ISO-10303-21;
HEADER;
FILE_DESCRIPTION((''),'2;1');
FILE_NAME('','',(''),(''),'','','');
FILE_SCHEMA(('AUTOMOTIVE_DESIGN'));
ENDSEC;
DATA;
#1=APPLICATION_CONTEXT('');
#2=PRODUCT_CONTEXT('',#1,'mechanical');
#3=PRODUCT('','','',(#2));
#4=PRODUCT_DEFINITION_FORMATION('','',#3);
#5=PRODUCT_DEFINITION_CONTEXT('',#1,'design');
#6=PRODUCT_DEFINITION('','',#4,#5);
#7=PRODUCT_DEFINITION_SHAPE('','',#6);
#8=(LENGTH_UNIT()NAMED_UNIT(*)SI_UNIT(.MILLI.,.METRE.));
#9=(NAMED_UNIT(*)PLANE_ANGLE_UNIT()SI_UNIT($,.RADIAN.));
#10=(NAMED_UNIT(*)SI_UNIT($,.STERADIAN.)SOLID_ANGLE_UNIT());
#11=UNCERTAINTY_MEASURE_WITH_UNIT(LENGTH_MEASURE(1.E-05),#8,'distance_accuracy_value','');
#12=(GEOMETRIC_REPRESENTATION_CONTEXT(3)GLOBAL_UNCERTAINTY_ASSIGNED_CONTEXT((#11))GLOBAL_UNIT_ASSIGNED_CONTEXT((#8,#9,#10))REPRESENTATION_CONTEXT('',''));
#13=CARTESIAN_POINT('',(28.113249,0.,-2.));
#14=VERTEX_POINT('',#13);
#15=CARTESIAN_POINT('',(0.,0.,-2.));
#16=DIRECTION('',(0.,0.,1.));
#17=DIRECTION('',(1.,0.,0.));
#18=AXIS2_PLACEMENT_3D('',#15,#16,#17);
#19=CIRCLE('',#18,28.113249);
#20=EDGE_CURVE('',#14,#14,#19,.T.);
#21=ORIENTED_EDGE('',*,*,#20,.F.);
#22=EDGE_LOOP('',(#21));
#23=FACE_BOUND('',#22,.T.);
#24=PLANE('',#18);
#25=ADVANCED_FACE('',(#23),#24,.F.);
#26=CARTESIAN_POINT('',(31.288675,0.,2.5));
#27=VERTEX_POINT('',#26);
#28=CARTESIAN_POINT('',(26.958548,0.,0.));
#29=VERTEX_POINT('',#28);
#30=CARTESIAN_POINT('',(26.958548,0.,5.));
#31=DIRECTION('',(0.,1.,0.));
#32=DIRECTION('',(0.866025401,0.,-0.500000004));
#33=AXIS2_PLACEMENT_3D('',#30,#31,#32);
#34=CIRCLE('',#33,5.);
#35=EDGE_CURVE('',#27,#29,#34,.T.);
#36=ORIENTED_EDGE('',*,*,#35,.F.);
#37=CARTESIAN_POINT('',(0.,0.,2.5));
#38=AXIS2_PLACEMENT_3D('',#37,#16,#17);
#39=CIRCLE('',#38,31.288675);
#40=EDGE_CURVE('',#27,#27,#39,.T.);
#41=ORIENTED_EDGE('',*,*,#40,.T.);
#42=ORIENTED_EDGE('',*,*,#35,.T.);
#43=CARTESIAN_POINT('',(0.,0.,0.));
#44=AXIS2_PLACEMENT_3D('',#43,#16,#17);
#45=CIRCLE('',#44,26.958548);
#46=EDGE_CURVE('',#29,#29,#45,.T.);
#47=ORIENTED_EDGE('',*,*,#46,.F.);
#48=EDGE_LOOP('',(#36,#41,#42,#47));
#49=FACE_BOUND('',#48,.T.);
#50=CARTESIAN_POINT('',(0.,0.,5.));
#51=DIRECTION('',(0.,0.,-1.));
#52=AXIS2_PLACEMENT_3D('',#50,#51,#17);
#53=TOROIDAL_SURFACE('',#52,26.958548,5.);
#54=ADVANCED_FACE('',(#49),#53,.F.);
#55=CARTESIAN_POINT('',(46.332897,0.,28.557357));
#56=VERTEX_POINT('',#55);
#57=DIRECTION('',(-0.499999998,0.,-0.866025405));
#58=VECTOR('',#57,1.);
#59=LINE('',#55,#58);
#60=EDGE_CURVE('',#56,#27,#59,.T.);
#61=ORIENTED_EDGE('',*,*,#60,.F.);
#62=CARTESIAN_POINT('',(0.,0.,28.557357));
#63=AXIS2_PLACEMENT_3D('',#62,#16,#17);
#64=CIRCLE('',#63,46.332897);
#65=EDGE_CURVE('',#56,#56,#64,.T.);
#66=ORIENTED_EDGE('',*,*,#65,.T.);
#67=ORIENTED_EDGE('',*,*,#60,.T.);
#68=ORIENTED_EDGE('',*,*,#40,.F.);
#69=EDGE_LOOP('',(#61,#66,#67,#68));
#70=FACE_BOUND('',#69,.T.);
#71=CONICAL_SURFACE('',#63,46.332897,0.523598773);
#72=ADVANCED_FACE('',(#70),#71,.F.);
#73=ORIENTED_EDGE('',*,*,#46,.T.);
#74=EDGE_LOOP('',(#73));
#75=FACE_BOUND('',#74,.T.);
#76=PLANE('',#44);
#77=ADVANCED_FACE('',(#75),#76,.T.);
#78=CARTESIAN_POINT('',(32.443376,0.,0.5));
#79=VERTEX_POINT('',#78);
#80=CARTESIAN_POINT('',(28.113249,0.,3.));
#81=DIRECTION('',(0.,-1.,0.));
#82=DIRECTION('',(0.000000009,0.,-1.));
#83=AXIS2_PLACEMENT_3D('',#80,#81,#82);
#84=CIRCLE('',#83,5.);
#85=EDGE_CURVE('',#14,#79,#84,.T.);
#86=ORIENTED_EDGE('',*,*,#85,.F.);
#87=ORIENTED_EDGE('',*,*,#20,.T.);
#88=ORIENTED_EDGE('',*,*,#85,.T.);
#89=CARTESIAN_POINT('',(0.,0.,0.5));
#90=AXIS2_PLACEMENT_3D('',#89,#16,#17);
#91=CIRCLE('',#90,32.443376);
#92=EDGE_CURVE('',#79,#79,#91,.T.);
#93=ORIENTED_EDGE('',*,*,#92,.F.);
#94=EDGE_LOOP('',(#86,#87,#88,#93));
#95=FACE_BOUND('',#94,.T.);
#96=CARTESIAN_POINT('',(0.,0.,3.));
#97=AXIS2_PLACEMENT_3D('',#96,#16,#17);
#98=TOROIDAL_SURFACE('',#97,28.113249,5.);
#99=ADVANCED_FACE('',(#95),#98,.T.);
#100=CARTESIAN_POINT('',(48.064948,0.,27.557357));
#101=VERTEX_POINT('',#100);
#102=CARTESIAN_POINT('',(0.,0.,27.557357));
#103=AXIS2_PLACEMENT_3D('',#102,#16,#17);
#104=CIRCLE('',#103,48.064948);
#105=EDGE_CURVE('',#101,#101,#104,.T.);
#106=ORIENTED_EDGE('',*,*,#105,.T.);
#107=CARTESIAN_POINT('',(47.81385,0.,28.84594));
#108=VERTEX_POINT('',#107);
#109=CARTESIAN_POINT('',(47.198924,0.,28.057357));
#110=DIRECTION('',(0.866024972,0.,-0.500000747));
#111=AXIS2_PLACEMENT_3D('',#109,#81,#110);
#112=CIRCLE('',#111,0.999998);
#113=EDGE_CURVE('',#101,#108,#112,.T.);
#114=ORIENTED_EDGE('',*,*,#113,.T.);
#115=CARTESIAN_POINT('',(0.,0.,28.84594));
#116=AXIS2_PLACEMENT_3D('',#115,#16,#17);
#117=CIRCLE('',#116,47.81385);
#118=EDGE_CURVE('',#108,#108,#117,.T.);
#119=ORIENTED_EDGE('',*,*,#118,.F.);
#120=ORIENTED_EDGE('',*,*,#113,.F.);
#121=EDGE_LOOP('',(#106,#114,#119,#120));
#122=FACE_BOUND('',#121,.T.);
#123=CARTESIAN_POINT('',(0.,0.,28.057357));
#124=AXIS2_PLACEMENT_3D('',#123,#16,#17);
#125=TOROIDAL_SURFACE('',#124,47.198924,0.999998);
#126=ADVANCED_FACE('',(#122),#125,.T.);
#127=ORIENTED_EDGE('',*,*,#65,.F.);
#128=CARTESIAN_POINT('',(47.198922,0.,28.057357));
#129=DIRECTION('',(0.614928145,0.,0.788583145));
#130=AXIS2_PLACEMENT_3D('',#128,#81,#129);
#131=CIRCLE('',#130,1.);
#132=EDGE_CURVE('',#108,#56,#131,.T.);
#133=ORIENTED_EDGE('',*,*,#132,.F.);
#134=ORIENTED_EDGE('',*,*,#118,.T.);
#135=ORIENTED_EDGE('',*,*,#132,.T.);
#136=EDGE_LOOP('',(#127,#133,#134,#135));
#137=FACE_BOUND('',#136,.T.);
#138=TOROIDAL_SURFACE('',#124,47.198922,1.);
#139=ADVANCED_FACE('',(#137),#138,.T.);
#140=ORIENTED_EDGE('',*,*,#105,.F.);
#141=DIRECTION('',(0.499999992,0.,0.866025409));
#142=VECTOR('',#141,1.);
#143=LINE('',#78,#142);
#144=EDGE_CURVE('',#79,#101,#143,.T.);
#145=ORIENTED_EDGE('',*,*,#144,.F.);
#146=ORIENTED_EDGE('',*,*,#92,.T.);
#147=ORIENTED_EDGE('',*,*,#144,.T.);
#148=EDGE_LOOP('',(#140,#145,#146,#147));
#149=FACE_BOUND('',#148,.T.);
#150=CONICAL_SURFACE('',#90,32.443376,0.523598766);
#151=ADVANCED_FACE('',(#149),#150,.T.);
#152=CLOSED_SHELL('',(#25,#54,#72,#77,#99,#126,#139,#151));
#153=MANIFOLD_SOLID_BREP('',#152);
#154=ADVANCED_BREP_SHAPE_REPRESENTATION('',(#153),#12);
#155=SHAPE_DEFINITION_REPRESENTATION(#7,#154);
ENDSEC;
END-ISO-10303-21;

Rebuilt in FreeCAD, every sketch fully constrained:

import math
import FreeCAD as App
import Part
import Sketcher
from FreeCAD import Vector
Q = App.Units.Quantity

doc = App.newDocument("Part")
body = doc.addObject("PartDesign::Body", "Body")

# Sketch on XZ plane
sketch1 = body.newObject("Sketcher::SketchObject", "Sketch")
sketch1.AttachmentSupport = (doc.getObject("XZ_Plane"), [""])
sketch1.MapMode = "FlatFace"
sketch1.addGeometry([
    Part.LineSegment(Vector(26.958548, 0, 0), Vector(0, 0, 0)),  # 0
    Part.LineSegment(Vector(0, 0, 0), Vector(0, -2, 0)),  # 1
    Part.LineSegment(Vector(0, -2, 0), Vector(28.113249, -2, 0)),  # 2
    Part.ArcOfCircle(Part.Circle(Vector(28.113249, 3, 0), Vector(0, 0, 1), 5), math.radians(-89.999999), math.radians(-30)),  # 3
    Part.LineSegment(Vector(32.443376, 0.5, 0), Vector(48.064948, 27.557357, 0)),  # 4
    Part.ArcOfCircle(Part.Circle(Vector(47.198924, 28.057357, 0), Vector(0, 0, 1), 0.999998), math.radians(-30.000049), math.radians(52.053416)),  # 5
    Part.ArcOfCircle(Part.Circle(Vector(47.198922, 28.057357, 0), Vector(0, 0, 1), 1), math.radians(52.053301), math.radians(149.999997)),  # 6
    Part.LineSegment(Vector(46.332897, 28.557357, 0), Vector(31.288675, 2.5, 0)),  # 7
    Part.ArcOfCircle(Part.Circle(Vector(26.958548, 5, 0), Vector(0, 0, 1), 5), math.radians(-89.999999), math.radians(-30)),  # 8
], False)
sketch1.addConstraint([
    Sketcher.Constraint("Coincident", 0, 2, 1, 1),
    Sketcher.Constraint("Coincident", 1, 2, 2, 1),
    Sketcher.Constraint("Tangent", 2, 2, 3, 1),
    Sketcher.Constraint("Tangent", 3, 2, 4, 1),
    Sketcher.Constraint("Tangent", 4, 2, 5, 1),
    Sketcher.Constraint("Coincident", 5, 2, 6, 1),
    Sketcher.Constraint("Tangent", 6, 2, 7, 1),
    Sketcher.Constraint("Tangent", 7, 2, 8, 2),
    Sketcher.Constraint("Tangent", 8, 1, 0, 1),
    Sketcher.Constraint("Horizontal", 0),
    Sketcher.Constraint("Vertical", 1),
    Sketcher.Constraint("Horizontal", 2),
    Sketcher.Constraint("Coincident", 0, 2, -1, 1),
    Sketcher.Constraint("Coincident", 6, 3, 5, 3),
    Sketcher.Constraint("Equal", 3, 8),
    Sketcher.Constraint("Parallel", 4, 7),
    Sketcher.Constraint("Radius", 3, Q("5 mm")),
    Sketcher.Constraint("Radius", 5, Q("0.999998 mm")),
    Sketcher.Constraint("DistanceY", 1, 2, 1, 1, Q("2 mm")),
    Sketcher.Constraint("Angle", 4, Q("60.000001 deg")),
    Sketcher.Constraint("DistanceX", 0, 2, 0, 1, Q("26.958548 mm")),
    Sketcher.Constraint("DistanceX", 8, 3, 4, 2, Q("21.1064 mm")),
    Sketcher.Constraint("DistanceX", -1, 1, 5, 2, Q("47.81385 mm")),
])
revolution = body.newObject("PartDesign::Revolution", "Revolution")
revolution.Profile = sketch1
revolution.ReferenceAxis = (sketch1, ["V_Axis"])
revolution.Angle = 360

doc.recompute()
